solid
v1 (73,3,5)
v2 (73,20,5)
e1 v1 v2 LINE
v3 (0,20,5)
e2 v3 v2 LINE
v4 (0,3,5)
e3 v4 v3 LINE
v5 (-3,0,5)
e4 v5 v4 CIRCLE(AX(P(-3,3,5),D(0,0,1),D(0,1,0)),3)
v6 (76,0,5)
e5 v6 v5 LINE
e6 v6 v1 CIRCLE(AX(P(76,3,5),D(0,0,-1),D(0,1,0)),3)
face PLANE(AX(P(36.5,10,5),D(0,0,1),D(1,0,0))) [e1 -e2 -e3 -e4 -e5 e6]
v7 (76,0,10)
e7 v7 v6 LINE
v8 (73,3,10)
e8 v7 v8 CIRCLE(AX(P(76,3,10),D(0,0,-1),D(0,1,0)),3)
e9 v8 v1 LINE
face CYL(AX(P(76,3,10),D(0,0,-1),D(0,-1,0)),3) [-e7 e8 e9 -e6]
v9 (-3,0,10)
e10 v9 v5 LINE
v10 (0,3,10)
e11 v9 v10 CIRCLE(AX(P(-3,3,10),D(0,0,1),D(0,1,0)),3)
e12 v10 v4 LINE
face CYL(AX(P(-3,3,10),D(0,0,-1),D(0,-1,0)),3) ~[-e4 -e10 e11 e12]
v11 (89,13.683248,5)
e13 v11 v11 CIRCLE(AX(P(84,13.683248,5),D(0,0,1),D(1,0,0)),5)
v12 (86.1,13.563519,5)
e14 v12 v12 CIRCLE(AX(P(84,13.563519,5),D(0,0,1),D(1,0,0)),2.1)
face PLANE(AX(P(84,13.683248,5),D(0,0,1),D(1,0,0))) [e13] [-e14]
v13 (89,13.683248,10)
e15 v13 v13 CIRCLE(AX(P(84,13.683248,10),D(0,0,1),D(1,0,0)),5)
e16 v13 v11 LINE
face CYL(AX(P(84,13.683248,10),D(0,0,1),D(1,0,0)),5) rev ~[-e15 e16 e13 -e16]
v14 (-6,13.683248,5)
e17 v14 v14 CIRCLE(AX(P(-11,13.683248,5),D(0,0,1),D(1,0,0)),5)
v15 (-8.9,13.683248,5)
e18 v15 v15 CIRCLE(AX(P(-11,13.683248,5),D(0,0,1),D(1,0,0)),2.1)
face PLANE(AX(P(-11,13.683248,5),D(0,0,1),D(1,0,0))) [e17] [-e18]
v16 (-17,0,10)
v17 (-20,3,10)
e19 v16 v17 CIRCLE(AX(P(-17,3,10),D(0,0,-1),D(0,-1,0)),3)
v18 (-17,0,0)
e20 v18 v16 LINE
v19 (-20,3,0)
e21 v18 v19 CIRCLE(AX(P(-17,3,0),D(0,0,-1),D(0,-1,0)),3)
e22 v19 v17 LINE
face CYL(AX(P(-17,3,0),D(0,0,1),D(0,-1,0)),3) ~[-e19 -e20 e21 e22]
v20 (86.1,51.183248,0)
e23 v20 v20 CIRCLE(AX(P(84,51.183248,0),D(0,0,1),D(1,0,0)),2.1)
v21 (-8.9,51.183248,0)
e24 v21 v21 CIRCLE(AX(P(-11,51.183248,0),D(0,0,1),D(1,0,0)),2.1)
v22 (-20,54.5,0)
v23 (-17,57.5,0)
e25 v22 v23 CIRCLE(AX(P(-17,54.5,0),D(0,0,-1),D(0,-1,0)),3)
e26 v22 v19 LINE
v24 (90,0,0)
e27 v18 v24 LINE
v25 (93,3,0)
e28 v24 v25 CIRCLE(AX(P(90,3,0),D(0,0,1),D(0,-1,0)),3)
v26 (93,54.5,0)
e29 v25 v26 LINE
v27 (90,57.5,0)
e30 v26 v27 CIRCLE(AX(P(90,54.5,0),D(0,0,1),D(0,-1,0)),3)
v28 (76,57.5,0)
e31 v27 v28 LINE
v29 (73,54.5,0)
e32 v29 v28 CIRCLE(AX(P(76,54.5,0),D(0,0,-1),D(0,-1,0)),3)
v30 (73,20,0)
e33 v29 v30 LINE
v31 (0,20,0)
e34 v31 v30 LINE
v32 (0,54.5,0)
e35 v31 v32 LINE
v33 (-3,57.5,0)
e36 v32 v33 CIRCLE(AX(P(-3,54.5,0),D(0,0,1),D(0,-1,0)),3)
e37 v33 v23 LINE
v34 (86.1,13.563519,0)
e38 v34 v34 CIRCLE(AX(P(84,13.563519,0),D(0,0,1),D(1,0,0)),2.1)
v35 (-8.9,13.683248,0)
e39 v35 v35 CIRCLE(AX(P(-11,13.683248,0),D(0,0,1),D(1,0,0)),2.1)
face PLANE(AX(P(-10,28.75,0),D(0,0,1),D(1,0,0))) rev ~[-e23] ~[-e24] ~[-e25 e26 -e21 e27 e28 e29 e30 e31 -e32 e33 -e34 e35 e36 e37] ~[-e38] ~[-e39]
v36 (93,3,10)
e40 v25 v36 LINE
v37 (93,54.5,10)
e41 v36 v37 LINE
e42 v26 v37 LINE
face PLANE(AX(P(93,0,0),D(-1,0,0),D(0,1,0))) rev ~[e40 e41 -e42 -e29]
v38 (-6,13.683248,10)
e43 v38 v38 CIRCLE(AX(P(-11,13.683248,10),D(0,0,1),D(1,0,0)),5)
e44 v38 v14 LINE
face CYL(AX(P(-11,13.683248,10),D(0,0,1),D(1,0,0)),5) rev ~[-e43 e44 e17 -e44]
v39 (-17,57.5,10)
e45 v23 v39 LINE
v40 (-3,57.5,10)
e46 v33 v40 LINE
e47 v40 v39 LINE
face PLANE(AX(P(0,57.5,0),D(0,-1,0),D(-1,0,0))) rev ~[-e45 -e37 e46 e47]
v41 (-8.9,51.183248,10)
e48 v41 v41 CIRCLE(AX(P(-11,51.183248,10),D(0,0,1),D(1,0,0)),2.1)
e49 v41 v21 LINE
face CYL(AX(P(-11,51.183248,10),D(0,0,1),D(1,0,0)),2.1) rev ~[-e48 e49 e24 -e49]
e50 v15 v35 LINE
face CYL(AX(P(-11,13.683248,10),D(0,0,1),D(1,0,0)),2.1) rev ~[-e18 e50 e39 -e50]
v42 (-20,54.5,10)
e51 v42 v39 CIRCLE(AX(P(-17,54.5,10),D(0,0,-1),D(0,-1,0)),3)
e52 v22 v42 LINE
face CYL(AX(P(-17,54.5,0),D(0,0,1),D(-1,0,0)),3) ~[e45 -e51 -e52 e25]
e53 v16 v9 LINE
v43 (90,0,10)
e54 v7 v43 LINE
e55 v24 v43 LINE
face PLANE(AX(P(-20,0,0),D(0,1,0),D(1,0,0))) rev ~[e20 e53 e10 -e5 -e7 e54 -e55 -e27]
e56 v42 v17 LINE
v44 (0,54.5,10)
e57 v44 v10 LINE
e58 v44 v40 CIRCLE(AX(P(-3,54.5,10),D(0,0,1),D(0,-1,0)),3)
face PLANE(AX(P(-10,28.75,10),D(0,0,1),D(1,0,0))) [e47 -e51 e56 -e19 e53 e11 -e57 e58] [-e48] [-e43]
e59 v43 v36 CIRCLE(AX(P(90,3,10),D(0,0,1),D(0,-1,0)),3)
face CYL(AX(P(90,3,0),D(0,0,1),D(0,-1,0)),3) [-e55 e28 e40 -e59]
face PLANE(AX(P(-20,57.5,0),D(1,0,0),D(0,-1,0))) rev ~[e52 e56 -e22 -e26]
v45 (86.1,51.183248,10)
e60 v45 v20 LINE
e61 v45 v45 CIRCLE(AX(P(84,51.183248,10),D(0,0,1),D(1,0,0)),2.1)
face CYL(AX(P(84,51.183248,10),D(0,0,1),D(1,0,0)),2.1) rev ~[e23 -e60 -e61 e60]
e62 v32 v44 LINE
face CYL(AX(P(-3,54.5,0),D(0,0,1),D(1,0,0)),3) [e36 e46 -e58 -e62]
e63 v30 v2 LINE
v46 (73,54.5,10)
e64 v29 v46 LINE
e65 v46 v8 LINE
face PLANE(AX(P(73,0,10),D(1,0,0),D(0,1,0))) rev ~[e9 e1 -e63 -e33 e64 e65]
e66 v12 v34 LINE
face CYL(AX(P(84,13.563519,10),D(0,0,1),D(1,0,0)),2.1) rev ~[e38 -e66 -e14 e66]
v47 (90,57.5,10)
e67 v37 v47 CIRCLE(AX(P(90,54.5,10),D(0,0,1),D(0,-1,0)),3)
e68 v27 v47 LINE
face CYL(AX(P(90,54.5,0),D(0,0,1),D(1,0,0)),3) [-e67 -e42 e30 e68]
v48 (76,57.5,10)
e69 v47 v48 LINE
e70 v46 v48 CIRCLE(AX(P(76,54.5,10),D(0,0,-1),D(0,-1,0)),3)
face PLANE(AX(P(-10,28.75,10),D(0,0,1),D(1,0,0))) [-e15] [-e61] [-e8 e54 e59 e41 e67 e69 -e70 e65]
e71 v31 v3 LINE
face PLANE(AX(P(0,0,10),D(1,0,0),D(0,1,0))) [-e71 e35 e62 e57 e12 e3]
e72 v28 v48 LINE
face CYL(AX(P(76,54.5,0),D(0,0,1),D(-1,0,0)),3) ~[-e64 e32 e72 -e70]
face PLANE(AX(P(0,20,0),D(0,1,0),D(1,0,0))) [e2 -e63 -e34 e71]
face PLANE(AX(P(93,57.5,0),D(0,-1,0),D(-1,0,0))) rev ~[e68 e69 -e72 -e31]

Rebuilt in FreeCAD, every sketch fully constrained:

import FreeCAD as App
import Part
import Sketcher

V = App.Vector
Q = App.Units.Quantity


def edges_at(feature, points):
    """Names of the edges that pass closest to the given points."""
    edges = feature.Shape.Edges
    near = lambda p: min(range(len(edges)), key=lambda i: edges[i].distToShape(Part.Vertex(*p))[0])
    return sorted({f"Edge{near(p) + 1}" for p in points})

doc = App.newDocument("Part")
body = doc.addObject("PartDesign::Body", "Body")

sketch1 = body.newObject("Sketcher::SketchObject", "Sketch")
sketch1.AttachmentSupport = (doc.getObject("XY_Plane"), [""])
sketch1.MapMode = "FlatFace"
sketch1.addGeometry([
    Part.LineSegment(V(-20, 0, 0), V(93, 0, 0)),
    Part.LineSegment(V(93, 0, 0), V(93, 57.5, 0)),
    Part.LineSegment(V(93, 57.5, 0), V(73, 57.5, 0)),
    Part.LineSegment(V(73, 57.5, 0), V(73, 20, 0)),
    Part.LineSegment(V(73, 20, 0), V(0, 20, 0)),
    Part.LineSegment(V(0, 20, 0), V(0, 57.5, 0)),
    Part.LineSegment(V(0, 57.5, 0), V(-20, 57.5, 0)),
    Part.LineSegment(V(-20, 57.5, 0), V(-20, 0, 0)),
], False)
sketch1.addConstraint([
    Sketcher.Constraint("Coincident", 0, 2, 1, 1),
    Sketcher.Constraint("Coincident", 1, 2, 2, 1),
    Sketcher.Constraint("Coincident", 2, 2, 3, 1),
    Sketcher.Constraint("Coincident", 3, 2, 4, 1),
    Sketcher.Constraint("Coincident", 4, 2, 5, 1),
    Sketcher.Constraint("Coincident", 5, 2, 6, 1),
    Sketcher.Constraint("Coincident", 6, 2, 7, 1),
    Sketcher.Constraint("Coincident", 7, 2, 0, 1),
    Sketcher.Constraint("Horizontal", 0),
    Sketcher.Constraint("Vertical", 1),
    Sketcher.Constraint("Horizontal", 2),
    Sketcher.Constraint("Vertical", 3),
    Sketcher.Constraint("Horizontal", 4),
    Sketcher.Constraint("Vertical", 5),
    Sketcher.Constraint("Horizontal", 6),
    Sketcher.Constraint("Vertical", 7),
    Sketcher.Constraint("PointOnObject", 0, 2, -1),
    Sketcher.Constraint("PointOnObject", 4, 2, -2),
    Sketcher.Constraint("Horizontal", 2, 2, 5, 2),
    Sketcher.Constraint("Equal", 2, 6),
    Sketcher.Constraint("DistanceX", 0, 1, 0, 2, Q("113 mm")),
    Sketcher.Constraint("DistanceX", 2, 2, 2, 1, Q("20 mm")),
    Sketcher.Constraint("DistanceY", 1, 1, 1, 2, Q("57.5 mm")),
    Sketcher.Constraint("DistanceY", 3, 2, 3, 1, Q("37.5 mm")),
])
pad1 = body.newObject("PartDesign::Pad", "Pad")
pad1.Profile = sketch1
pad1.Length = 10

sketch2 = body.newObject("Sketcher::SketchObject", "Sketch001")
sketch2.AttachmentSupport = (doc.getObject("XY_Plane"), [""])
sketch2.MapMode = "FlatFace"
sketch2.AttachmentOffset = App.Placement(V(0, 0, 10), App.Rotation())
sketch2.addGeometry([
    Part.LineSegment(V(0, 20, 0), V(0, 0, 0)),
    Part.LineSegment(V(0, 0, 0), V(73, 0, 0)),
    Part.LineSegment(V(73, 0, 0), V(73, 20, 0)),
    Part.LineSegment(V(73, 20, 0), V(0, 20, 0)),
], False)
sketch2.addConstraint([
    Sketcher.Constraint("Coincident", 0, 2, 1, 1),
    Sketcher.Constraint("Coincident", 1, 2, 2, 1),
    Sketcher.Constraint("Coincident", 2, 2, 3, 1),
    Sketcher.Constraint("Coincident", 3, 2, 0, 1),
    Sketcher.Constraint("Vertical", 0),
    Sketcher.Constraint("Horizontal", 1),
    Sketcher.Constraint("Vertical", 2),
    Sketcher.Constraint("Horizontal", 3),
    Sketcher.Constraint("Coincident", 0, 2, -1, 1),
    Sketcher.Constraint("DistanceX", 1, 1, 1, 2, Q("73 mm")),
    Sketcher.Constraint("DistanceY", 0, 2, 0, 1, Q("20 mm")),
])
pocket1 = body.newObject("PartDesign::Pocket", "Pocket")
pocket1.Profile = sketch2
pocket1.Length = 5

sketch3 = body.newObject("Sketcher::SketchObject", "Sketch002")
sketch3.AttachmentSupport = (doc.getObject("XY_Plane"), [""])
sketch3.MapMode = "FlatFace"
sketch3.AttachmentOffset = App.Placement(V(0, 0, 10), App.Rotation())
sketch3.addGeometry([
    Part.Circle(V(-11, 13.683248, 0), V(0, 0, 1), 2.1),
    Part.Circle(V(84, 13.563519, 0), V(0, 0, 1), 2.1),
    Part.Circle(V(-11, 51.183248, 0), V(0, 0, 1), 2.1),
    Part.Circle(V(84, 51.183248, 0), V(0, 0, 1), 2.1),
], False)
sketch3.addConstraint([
    Sketcher.Constraint("Equal", 0, 1),
    Sketcher.Constraint("Equal", 1, 2),
    Sketcher.Constraint("Equal", 2, 3),
    Sketcher.Constraint("Horizontal", 2, 3, 3, 3),
    Sketcher.Constraint("Vertical", 0, 3, 2, 3),
    Sketcher.Constraint("Vertical", 1, 3, 3, 3),
    Sketcher.Constraint("Diameter", 0, Q("4.2 mm")),
    Sketcher.Constraint("DistanceX", 0, 3, -1, 1, Q("11 mm")),
    Sketcher.Constraint("DistanceX", -1, 1, 1, 3, Q("84 mm")),
    Sketcher.Constraint("DistanceY", 0, 3, 2, 3, Q("37.5 mm")),
    Sketcher.Constraint("DistanceY", -1, 1, 1, 3, Q("13.563519 mm")),
    Sketcher.Constraint("DistanceY", 1, 3, 0, 3, Q("0.119728 mm")),
])
pocket2 = body.newObject("PartDesign::Pocket", "Pocket001")
pocket2.Profile = sketch3
pocket2.Type = "ThroughAll"

sketch4 = body.newObject("Sketcher::SketchObject", "Sketch003")
sketch4.AttachmentSupport = (doc.getObject("XY_Plane"), [""])
sketch4.MapMode = "FlatFace"
sketch4.AttachmentOffset = App.Placement(V(0, 0, 10), App.Rotation())
sketch4.addGeometry([
    Part.Circle(V(-11, 13.683248, 0), V(0, 0, 1), 5),
    Part.Circle(V(-11, 13.683248, 0), V(0, 0, 1), 2.1),
    Part.Circle(V(84, 13.683248, 0), V(0, 0, 1), 5),
], False)
sketch4.addConstraint([
    Sketcher.Constraint("Coincident", 1, 3, 0, 3),
    Sketcher.Constraint("Equal", 0, 2),
    Sketcher.Constraint("Horizontal", 1, 3, 2, 3),
    Sketcher.Constraint("Diameter", 0, Q("10 mm")),
    Sketcher.Constraint("Diameter", 1, Q("4.2 mm")),
    Sketcher.Constraint("DistanceX", 0, 3, -1, 1, Q("11 mm")),
    Sketcher.Constraint("DistanceX", -1, 1, 2, 3, Q("84 mm")),
    Sketcher.Constraint("DistanceY", -1, 1, 0, 3, Q("13.683248 mm")),
])
pocket3 = body.newObject("PartDesign::Pocket", "Pocket002")
pocket3.Profile = sketch4
pocket3.Length = 5
doc.recompute()

fillet = body.newObject("PartDesign::Fillet", "Fillet")
fillet.Base = (pocket3, edges_at(pocket3, [
    (-20, 57.5, 5),
    (0, 57.5, 5),
    (73, 57.5, 5),
    (93, 57.5, 5),
    (-20, 0, 5),
    (93, 0, 5),
    (0, 0, 7.5),
    (73, 0, 7.5),
]))
fillet.Radius = 3

doc.recompute()
